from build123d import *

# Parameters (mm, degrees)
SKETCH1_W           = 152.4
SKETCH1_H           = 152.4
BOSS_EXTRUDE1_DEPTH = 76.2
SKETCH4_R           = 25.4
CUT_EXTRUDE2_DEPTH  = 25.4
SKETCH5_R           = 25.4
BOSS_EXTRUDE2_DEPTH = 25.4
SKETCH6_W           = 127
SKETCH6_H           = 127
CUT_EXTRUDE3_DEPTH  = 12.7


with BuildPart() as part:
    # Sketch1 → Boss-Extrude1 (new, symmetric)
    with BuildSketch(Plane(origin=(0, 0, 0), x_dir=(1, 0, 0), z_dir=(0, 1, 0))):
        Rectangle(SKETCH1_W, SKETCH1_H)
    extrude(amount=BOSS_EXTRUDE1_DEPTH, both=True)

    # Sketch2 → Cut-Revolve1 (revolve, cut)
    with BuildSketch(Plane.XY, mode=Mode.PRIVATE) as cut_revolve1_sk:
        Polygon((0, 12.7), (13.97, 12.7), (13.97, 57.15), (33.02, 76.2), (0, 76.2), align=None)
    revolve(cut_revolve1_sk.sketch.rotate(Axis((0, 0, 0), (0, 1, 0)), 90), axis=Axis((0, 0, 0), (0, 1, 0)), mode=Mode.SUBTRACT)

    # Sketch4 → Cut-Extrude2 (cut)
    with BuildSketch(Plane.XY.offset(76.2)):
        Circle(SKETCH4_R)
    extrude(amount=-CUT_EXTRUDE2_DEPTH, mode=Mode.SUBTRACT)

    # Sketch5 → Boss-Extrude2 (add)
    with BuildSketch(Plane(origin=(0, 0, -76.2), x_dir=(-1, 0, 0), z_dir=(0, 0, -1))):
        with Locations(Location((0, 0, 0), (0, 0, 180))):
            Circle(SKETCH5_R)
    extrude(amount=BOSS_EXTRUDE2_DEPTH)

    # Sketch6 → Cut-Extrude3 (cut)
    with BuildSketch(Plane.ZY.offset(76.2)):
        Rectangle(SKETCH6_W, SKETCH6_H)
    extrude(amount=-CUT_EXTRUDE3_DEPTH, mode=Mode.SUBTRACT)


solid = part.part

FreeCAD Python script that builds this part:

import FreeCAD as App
import Part
import Sketcher
from FreeCAD import Vector
Q = App.Units.Quantity

doc = App.newDocument("Part")
body = doc.addObject("PartDesign::Body", "Body")

sketch1 = body.newObject("Sketcher::SketchObject", "Sketch")
sketch1.AttachmentSupport = (doc.getObject("XZ_Plane"), [""])
sketch1.MapMode = "FlatFace"
sketch1.addGeometry(Part.LineSegment(Vector(-76.2, -76.2, 0), Vector(-76.2, 76.2, 0)), False)
sketch1.addGeometry(Part.LineSegment(Vector(-76.2, 76.2, 0), Vector(76.2, 76.2, 0)), False)
sketch1.addGeometry(Part.LineSegment(Vector(76.2, 76.2, 0), Vector(76.2, -76.2, 0)), False)
sketch1.addGeometry(Part.LineSegment(Vector(76.2, -76.2, 0), Vector(-76.2, -76.2, 0)), False)
sketch1.addConstraint(Sketcher.Constraint("Coincident", 0, 2, 1, 1))
sketch1.addConstraint(Sketcher.Constraint("Coincident", 1, 2, 2, 1))
sketch1.addConstraint(Sketcher.Constraint("Coincident", 2, 2, 3, 1))
sketch1.addConstraint(Sketcher.Constraint("Coincident", 3, 2, 0, 1))
sketch1.addConstraint(Sketcher.Constraint("Vertical", 0))
sketch1.addConstraint(Sketcher.Constraint("Horizontal", 1))
sketch1.addConstraint(Sketcher.Constraint("Vertical", 2))
sketch1.addConstraint(Sketcher.Constraint("Horizontal", 3))
sketch1.addConstraint(Sketcher.Constraint("Symmetric", 0, 2, 2, 2, -1, 1))
sketch1.addConstraint(Sketcher.Constraint("Equal", 3, 0))
sketch1.addConstraint(Sketcher.Constraint("DistanceX", 1, 1, 1, 2, Q("6 in")))
pad1 = body.newObject("PartDesign::Pad", "Pad")
pad1.Profile = sketch1
pad1.Length = Q("6 in")
pad1.Midplane = True

sketch2 = body.newObject("Sketcher::SketchObject", "Sketch001")
sketch2.AttachmentSupport = (doc.getObject("XY_Plane"), [""])
sketch2.MapMode = "FlatFace"
sketch2.addGeometry(Part.LineSegment(Vector(0, 12.7, 0), Vector(13.97, 12.7, 0)), False)
sketch2.addGeometry(Part.LineSegment(Vector(13.97, 12.7, 0), Vector(13.97, 57.15, 0)), False)
sketch2.addGeometry(Part.LineSegment(Vector(13.97, 57.15, 0), Vector(33.02, 76.2, 0)), False)
sketch2.addGeometry(Part.LineSegment(Vector(33.02, 76.2, 0), Vector(0, 76.2, 0)), False)
sketch2.addGeometry(Part.LineSegment(Vector(0, 76.2, 0), Vector(0, 12.7, 0)), False)
sketch2.addConstraint(Sketcher.Constraint("Coincident", 0, 2, 1, 1))
sketch2.addConstraint(Sketcher.Constraint("Coincident", 1, 2, 2, 1))
sketch2.addConstraint(Sketcher.Constraint("Coincident", 2, 2, 3, 1))
sketch2.addConstraint(Sketcher.Constraint("Coincident", 3, 2, 4, 1))
sketch2.addConstraint(Sketcher.Constraint("Coincident", 4, 2, 0, 1))
sketch2.addConstraint(Sketcher.Constraint("Horizontal", 0))
sketch2.addConstraint(Sketcher.Constraint("Vertical", 1))
sketch2.addConstraint(Sketcher.Constraint("Horizontal", 3))
sketch2.addConstraint(Sketcher.Constraint("Vertical", 4))
sketch2.addConstraint(Sketcher.Constraint("PointOnObject", 3, 2, -2))
sketch2.addConstraint(Sketcher.Constraint("DistanceX", 3, 2, 3, 1, Q("1.3 in")))
sketch2.addConstraint(Sketcher.Constraint("DistanceY", 4, 2, 4, 1, Q("2.5 in")))
sketch2.addConstraint(Sketcher.Constraint("DistanceY", -1, 1, 2, 2, Q("3 in")))
sketch2.addConstraint(Sketcher.Constraint("Angle", 2, Q("45 deg")))
sketch2.addConstraint(Sketcher.Constraint("DistanceX", 0, 1, 0, 2, Q("0.55 in")))
groove = body.newObject("PartDesign::Groove", "Groove")
groove.Profile = sketch2
groove.ReferenceAxis = (sketch2, ["V_Axis"])
groove.Angle = 360

sketch3 = body.newObject("Sketcher::SketchObject", "Sketch002")
sketch3.AttachmentSupport = (doc.getObject("XY_Plane"), [""])
sketch3.MapMode = "FlatFace"
sketch3.AttachmentOffset = App.Placement(Vector(0, 0, 3 * 25.4), App.Rotation())
sketch3.addGeometry(Part.Circle(Vector(0, 0, 0), Vector(0, 0, 1), 25.4), False)
sketch3.addConstraint(Sketcher.Constraint("Coincident", 0, 3, -1, 1))
sketch3.addConstraint(Sketcher.Constraint("Diameter", 0, Q("2 in")))
pocket1 = body.newObject("PartDesign::Pocket", "Pocket")
pocket1.Profile = sketch3
pocket1.Length = Q("1 in")

sketch4 = body.newObject("Sketcher::SketchObject", "Sketch003")
sketch4.AttachmentSupport = (doc.getObject("XY_Plane"), [""])
sketch4.MapMode = "FlatFace"
sketch4.AttachmentOffset = App.Placement(Vector(0, 0, -3 * 25.4), App.Rotation())
sketch4.addGeometry(Part.Circle(Vector(0, 0, 0), Vector(0, 0, 1), 25.4), False)
sketch4.addConstraint(Sketcher.Constraint("Coincident", 0, 3, -1, 1))
sketch4.addConstraint(Sketcher.Constraint("Diameter", 0, Q("2 in")))
pad2 = body.newObject("PartDesign::Pad", "Pad001")
pad2.Profile = sketch4
pad2.Length = Q("1 in")
pad2.Reversed = True

sketch5 = body.newObject("Sketcher::SketchObject", "Sketch004")
sketch5.AttachmentSupport = (doc.getObject("YZ_Plane"), [""])
sketch5.MapMode = "FlatFace"
sketch5.AttachmentOffset = App.Placement(Vector(0, 0, -3 * 25.4), App.Rotation())
sketch5.addGeometry(Part.LineSegment(Vector(63.5, -63.5, 0), Vector(-63.5, -63.5, 0)), False)
sketch5.addGeometry(Part.LineSegment(Vector(-63.5, -63.5, 0), Vector(-63.5, 63.5, 0)), False)
sketch5.addGeometry(Part.LineSegment(Vector(-63.5, 63.5, 0), Vector(63.5, 63.5, 0)), False)
sketch5.addGeometry(Part.LineSegment(Vector(63.5, 63.5, 0), Vector(63.5, -63.5, 0)), False)
sketch5.addConstraint(Sketcher.Constraint("Coincident", 0, 2, 1, 1))
sketch5.addConstraint(Sketcher.Constraint("Coincident", 1, 2, 2, 1))
sketch5.addConstraint(Sketcher.Constraint("Coincident", 2, 2, 3, 1))
sketch5.addConstraint(Sketcher.Constraint("Coincident", 3, 2, 0, 1))
sketch5.addConstraint(Sketcher.Constraint("Horizontal", 0))
sketch5.addConstraint(Sketcher.Constraint("Vertical", 1))
sketch5.addConstraint(Sketcher.Constraint("Horizontal", 2))
sketch5.addConstraint(Sketcher.Constraint("Vertical", 3))
sketch5.addConstraint(Sketcher.Constraint("Symmetric", 0, 2, 2, 2, -1, 1))
sketch5.addConstraint(Sketcher.Constraint("Equal", 2, 1))
sketch5.addConstraint(Sketcher.Constraint("DistanceX", 0, 2, 0, 1, Q("5 in")))
pocket2 = body.newObject("PartDesign::Pocket", "Pocket001")
pocket2.Profile = sketch5
pocket2.Length = Q("0.5 in")
pocket2.Reversed = True

doc.recompute()
